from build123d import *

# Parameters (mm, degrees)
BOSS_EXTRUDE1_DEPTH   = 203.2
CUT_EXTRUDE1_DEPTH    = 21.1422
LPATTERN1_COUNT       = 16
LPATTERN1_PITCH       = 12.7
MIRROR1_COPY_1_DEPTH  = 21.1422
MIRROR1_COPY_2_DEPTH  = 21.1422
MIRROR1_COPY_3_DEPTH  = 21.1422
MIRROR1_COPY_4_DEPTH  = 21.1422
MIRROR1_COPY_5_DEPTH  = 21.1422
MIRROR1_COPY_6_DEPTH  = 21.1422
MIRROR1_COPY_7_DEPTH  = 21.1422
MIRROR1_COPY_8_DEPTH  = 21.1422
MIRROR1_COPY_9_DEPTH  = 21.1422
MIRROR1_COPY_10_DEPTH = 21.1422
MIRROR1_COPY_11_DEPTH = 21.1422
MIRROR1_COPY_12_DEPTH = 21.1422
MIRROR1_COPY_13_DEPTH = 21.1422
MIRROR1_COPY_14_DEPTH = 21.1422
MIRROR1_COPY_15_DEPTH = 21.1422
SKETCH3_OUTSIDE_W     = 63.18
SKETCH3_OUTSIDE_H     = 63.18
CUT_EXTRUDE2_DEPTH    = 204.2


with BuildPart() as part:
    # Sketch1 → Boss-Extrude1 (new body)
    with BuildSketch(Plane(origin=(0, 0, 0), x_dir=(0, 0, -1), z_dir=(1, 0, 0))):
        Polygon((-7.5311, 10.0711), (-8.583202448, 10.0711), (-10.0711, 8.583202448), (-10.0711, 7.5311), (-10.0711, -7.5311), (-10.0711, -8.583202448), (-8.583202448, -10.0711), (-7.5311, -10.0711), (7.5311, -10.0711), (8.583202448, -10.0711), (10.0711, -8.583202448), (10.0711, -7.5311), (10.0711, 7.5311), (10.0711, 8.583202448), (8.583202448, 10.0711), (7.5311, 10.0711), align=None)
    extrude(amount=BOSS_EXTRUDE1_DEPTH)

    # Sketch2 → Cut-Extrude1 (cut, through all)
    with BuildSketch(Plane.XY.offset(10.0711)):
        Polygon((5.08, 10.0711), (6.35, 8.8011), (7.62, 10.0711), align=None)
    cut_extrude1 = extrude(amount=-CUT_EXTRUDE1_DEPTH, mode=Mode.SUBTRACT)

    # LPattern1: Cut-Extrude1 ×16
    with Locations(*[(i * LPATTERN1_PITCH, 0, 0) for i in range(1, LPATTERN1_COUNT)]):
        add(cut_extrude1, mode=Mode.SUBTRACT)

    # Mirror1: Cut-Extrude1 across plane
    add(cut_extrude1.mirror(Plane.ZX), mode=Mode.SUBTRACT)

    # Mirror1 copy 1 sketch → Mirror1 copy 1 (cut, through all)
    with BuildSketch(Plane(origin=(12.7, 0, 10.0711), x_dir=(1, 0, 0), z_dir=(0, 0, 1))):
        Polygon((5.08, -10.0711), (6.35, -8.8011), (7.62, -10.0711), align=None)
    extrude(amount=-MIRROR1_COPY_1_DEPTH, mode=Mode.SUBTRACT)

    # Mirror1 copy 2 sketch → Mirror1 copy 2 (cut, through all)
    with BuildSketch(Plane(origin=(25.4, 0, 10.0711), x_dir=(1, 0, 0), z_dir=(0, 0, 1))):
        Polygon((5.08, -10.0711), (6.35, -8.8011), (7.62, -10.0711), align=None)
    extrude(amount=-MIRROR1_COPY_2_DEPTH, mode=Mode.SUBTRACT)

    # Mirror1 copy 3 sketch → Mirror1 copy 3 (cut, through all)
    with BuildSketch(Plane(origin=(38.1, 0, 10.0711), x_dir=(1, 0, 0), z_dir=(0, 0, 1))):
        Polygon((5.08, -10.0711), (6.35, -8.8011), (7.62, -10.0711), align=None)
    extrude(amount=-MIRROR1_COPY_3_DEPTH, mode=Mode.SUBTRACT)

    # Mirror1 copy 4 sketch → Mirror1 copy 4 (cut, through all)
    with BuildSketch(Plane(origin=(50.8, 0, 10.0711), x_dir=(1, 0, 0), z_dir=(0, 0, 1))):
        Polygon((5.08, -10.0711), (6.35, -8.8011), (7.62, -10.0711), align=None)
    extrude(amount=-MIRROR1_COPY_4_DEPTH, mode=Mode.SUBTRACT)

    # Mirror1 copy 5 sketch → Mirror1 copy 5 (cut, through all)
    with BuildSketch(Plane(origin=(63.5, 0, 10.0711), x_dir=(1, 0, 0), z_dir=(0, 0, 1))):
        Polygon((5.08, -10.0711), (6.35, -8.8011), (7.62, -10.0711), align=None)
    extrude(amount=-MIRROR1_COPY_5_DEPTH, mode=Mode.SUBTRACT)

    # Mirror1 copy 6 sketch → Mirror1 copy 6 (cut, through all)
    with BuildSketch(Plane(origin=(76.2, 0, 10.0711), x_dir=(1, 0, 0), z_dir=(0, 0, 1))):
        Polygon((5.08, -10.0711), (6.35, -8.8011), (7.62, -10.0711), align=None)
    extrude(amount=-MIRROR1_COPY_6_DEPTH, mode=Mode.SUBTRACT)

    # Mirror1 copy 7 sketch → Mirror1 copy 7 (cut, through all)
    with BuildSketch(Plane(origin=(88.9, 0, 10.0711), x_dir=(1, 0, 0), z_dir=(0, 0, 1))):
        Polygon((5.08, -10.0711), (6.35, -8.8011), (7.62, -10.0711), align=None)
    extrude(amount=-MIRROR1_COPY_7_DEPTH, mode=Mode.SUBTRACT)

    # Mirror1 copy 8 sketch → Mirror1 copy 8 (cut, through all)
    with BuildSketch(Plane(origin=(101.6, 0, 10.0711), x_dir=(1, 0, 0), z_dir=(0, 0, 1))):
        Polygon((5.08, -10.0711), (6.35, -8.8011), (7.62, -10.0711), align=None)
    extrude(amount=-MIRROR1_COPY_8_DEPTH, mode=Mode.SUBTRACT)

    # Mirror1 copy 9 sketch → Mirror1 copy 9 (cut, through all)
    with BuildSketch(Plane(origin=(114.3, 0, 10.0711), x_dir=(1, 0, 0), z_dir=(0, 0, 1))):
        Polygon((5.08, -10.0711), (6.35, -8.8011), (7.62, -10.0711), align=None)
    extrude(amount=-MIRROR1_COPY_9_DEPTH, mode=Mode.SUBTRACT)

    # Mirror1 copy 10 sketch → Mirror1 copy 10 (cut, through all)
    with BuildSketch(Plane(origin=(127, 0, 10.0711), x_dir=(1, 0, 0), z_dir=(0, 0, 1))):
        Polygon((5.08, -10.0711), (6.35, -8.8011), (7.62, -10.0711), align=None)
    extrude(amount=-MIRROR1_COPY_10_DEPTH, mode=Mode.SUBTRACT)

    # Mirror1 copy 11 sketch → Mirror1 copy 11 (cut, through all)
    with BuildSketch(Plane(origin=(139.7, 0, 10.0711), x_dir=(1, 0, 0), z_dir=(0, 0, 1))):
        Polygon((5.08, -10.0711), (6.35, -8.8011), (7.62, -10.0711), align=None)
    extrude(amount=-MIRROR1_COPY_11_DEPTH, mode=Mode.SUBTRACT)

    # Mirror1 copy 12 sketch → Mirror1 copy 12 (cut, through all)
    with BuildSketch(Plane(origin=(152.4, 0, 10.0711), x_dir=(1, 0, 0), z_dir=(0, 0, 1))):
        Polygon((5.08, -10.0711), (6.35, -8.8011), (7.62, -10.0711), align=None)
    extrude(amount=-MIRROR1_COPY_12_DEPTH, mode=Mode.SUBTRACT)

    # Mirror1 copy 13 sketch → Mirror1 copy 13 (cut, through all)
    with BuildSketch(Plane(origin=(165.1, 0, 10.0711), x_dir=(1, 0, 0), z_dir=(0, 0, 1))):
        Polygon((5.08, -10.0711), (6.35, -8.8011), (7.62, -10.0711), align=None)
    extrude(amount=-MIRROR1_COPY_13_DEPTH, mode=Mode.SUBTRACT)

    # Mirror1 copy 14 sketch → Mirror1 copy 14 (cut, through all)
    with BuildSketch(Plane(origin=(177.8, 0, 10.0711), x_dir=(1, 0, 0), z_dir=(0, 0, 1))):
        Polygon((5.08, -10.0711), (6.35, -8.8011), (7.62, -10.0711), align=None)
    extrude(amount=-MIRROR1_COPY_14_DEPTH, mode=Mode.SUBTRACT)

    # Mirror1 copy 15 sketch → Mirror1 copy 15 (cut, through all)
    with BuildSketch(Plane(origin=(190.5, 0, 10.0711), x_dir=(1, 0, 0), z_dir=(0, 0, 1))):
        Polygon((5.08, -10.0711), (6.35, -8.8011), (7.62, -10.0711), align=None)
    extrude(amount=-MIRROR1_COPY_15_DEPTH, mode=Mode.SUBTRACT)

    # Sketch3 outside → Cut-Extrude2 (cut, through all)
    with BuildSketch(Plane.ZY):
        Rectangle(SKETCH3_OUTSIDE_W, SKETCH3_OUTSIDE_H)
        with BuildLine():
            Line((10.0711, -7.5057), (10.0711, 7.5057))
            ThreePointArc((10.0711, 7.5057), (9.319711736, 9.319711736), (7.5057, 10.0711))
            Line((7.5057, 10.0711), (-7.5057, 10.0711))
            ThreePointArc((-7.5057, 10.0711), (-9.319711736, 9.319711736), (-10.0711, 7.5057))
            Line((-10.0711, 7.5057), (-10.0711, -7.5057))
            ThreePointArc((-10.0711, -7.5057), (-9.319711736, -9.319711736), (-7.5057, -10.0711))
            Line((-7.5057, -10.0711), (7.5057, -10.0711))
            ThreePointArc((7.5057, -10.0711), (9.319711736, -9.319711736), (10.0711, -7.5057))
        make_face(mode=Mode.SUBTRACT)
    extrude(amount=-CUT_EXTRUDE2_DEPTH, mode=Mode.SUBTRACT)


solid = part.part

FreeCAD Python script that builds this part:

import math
import FreeCAD as App
import Part
import Sketcher
from FreeCAD import Vector
Q = App.Units.Quantity


def add_polygon(sketch, points):
    """Adds a closed chain of lines whose ends are joined by coincident constraints."""
    first, n = sketch.GeometryCount, len(points)
    for a, b in zip(points, points[1:] + points[:1]):
        sketch.addGeometry(Part.LineSegment(App.Vector(*a, 0), App.Vector(*b, 0)), False)
    for i in range(n):
        sketch.addConstraint(Sketcher.Constraint("Coincident", first + i, 2, first + (i + 1) % n, 1))

doc = App.newDocument("Part")
body = doc.addObject("PartDesign::Body", "Body")

# Sketch on YZ plane
sketch1 = body.newObject("Sketcher::SketchObject", "Sketch")
sketch1.AttachmentSupport = (doc.getObject("YZ_Plane"), [""])
sketch1.MapMode = "FlatFace"
add_polygon(sketch1, [(10.0711, 8.583202), (8.583202, 10.0711), (-8.583202, 10.0711), (-10.0711, 8.583202), (-10.0711, -8.583202), (-8.583202, -10.0711), (8.583202, -10.0711), (10.0711, -8.583202)])  # lines 0-7
sketch1.addConstraint(Sketcher.Constraint("Horizontal", 1))
sketch1.addConstraint(Sketcher.Constraint("Vertical", 3))
sketch1.addConstraint(Sketcher.Constraint("Horizontal", 5))
sketch1.addConstraint(Sketcher.Constraint("Vertical", 7))
sketch1.addConstraint(Sketcher.Constraint("Symmetric", 0, 2, 4, 2, -1, 1))
sketch1.addConstraint(Sketcher.Constraint("Symmetric", 2, 2, 6, 2, -1, 1))
sketch1.addConstraint(Sketcher.Constraint("Perpendicular", 0, 2))
sketch1.addConstraint(Sketcher.Constraint("Perpendicular", 2, 4))
sketch1.addConstraint(Sketcher.Constraint("Perpendicular", 4, 6))
sketch1.addConstraint(Sketcher.Constraint("Horizontal", 3, 2, 6, 2))
sketch1.addConstraint(Sketcher.Constraint("Vertical", 1, 2, 4, 2))
sketch1.addConstraint(Sketcher.Constraint("Equal", 5, 3))
sketch1.addConstraint(Sketcher.Constraint("DistanceY", 4, 2, 1, 2, Q("0.793 in")))
sketch1.addConstraint(Sketcher.Constraint("DistanceX", 1, 2, 1, 1, 17.166405))
pad1 = body.newObject("PartDesign::Pad", "Pad")
pad1.Profile = sketch1
pad1.Length = Q("8 in")

# Sketch on XY plane
sketch2 = body.newObject("Sketcher::SketchObject", "Sketch001")
sketch2.AttachmentSupport = (doc.getObject("XY_Plane"), [""])
sketch2.MapMode = "FlatFace"
sketch2.AttachmentOffset = App.Placement(Vector(0, 0, 0.3965 * 25.4), App.Rotation())
add_polygon(sketch2, [(5.08, 10.0711), (6.35, 8.8011), (7.62, 10.0711)])  # lines 0-2
sketch2.addConstraint(Sketcher.Constraint("Horizontal", 2))
sketch2.addConstraint(Sketcher.Constraint("Perpendicular", 0, 1))
sketch2.addConstraint(Sketcher.Constraint("Equal", 0, 1))
sketch2.addConstraint(Sketcher.Constraint("DistanceX", 2, 2, 2, 1, Q("0.1 in")))
sketch2.addConstraint(Sketcher.Constraint("DistanceX", -1, 1, 1, 2, Q("0.3 in")))
sketch2.addConstraint(Sketcher.Constraint("DistanceY", -1, 1, 0, 2, Q("0.3465 in")))
pocket1 = body.newObject("PartDesign::Pocket", "Pocket")
pocket1.Profile = sketch2
pocket1.Type = "ThroughAll"
doc.recompute()

linearpattern = body.newObject("PartDesign::LinearPattern", "LinearPattern")
linearpattern.Originals = [pocket1]
linearpattern.Direction = (doc.getObject("X_Axis"), [""])
linearpattern.Mode = "offset"
linearpattern.Offset = Q("0.5 in")
linearpattern.Occurrences = 16
body.Tip = linearpattern
doc.recompute()

mirrored = body.newObject("PartDesign::Mirrored", "Mirrored")
mirrored.Originals = [pocket1]
mirrored.MirrorPlane = (doc.getObject("XZ_Plane"), [""])
body.Tip = mirrored

# Sketch on XY plane
sketch3 = body.newObject("Sketcher::SketchObject", "Sketch002")
sketch3.AttachmentSupport = (doc.getObject("XY_Plane"), [""])
sketch3.MapMode = "FlatFace"
sketch3.AttachmentOffset = App.Placement(Vector(0, 0, 0.3965 * 25.4), App.Rotation())
add_polygon(sketch3, [(19.05, -8.8011), (17.78, -10.0711), (20.32, -10.0711)])  # lines 0-2
sketch3.addConstraint(Sketcher.Constraint("Horizontal", 1))
sketch3.addConstraint(Sketcher.Constraint("Perpendicular", 0, 2))
sketch3.addConstraint(Sketcher.Constraint("Equal", 0, 2))
sketch3.addConstraint(Sketcher.Constraint("DistanceX", 1, 1, 1, 2, Q("0.1 in")))
sketch3.addConstraint(Sketcher.Constraint("DistanceX", -1, 1, 0, 2, Q("0.7 in")))
sketch3.addConstraint(Sketcher.Constraint("DistanceY", 0, 2, -1, 1, Q("0.3965 in")))
pocket2 = body.newObject("PartDesign::Pocket", "Pocket001")
pocket2.Profile = sketch3
pocket2.Type = "ThroughAll"

# Sketch on XY plane
sketch4 = body.newObject("Sketcher::SketchObject", "Sketch003")
sketch4.AttachmentSupport = (doc.getObject("XY_Plane"), [""])
sketch4.MapMode = "FlatFace"
sketch4.AttachmentOffset = App.Placement(Vector(0, 0, 0.3965 * 25.4), App.Rotation())
add_polygon(sketch4, [(31.75, -8.8011), (30.48, -10.0711), (33.02, -10.0711)])  # lines 0-2
sketch4.addConstraint(Sketcher.Constraint("Horizontal", 1))
sketch4.addConstraint(Sketcher.Constraint("Perpendicular", 0, 2))
sketch4.addConstraint(Sketcher.Constraint("Equal", 0, 2))
sketch4.addConstraint(Sketcher.Constraint("DistanceX", 1, 1, 1, 2, Q("0.1 in")))
sketch4.addConstraint(Sketcher.Constraint("DistanceX", -1, 1, 0, 2, Q("1.2 in")))
sketch4.addConstraint(Sketcher.Constraint("DistanceY", 0, 2, -1, 1, Q("0.3965 in")))
pocket3 = body.newObject("PartDesign::Pocket", "Pocket002")
pocket3.Profile = sketch4
pocket3.Type = "ThroughAll"

# Sketch on XY plane
sketch5 = body.newObject("Sketcher::SketchObject", "Sketch004")
sketch5.AttachmentSupport = (doc.getObject("XY_Plane"), [""])
sketch5.MapMode = "FlatFace"
sketch5.AttachmentOffset = App.Placement(Vector(0, 0, 0.3965 * 25.4), App.Rotation())
add_polygon(sketch5, [(44.45, -8.8011), (43.18, -10.0711), (45.72, -10.0711)])  # lines 0-2
sketch5.addConstraint(Sketcher.Constraint("Horizontal", 1))
sketch5.addConstraint(Sketcher.Constraint("Perpendicular", 0, 2))
sketch5.addConstraint(Sketcher.Constraint("Equal", 0, 2))
sketch5.addConstraint(Sketcher.Constraint("DistanceX", 1, 1, 1, 2, Q("0.1 in")))
sketch5.addConstraint(Sketcher.Constraint("DistanceX", -1, 1, 0, 2, Q("1.7 in")))
sketch5.addConstraint(Sketcher.Constraint("DistanceY", 0, 2, -1, 1, Q("0.3965 in")))
pocket4 = body.newObject("PartDesign::Pocket", "Pocket003")
pocket4.Profile = sketch5
pocket4.Type = "ThroughAll"

# Sketch on XY plane
sketch6 = body.newObject("Sketcher::SketchObject", "Sketch005")
sketch6.AttachmentSupport = (doc.getObject("XY_Plane"), [""])
sketch6.MapMode = "FlatFace"
sketch6.AttachmentOffset = App.Placement(Vector(0, 0, 0.3965 * 25.4), App.Rotation())
add_polygon(sketch6, [(57.15, -8.8011), (55.88, -10.0711), (58.42, -10.0711)])  # lines 0-2
sketch6.addConstraint(Sketcher.Constraint("Horizontal", 1))
sketch6.addConstraint(Sketcher.Constraint("Perpendicular", 0, 2))
sketch6.addConstraint(Sketcher.Constraint("Equal", 0, 2))
sketch6.addConstraint(Sketcher.Constraint("DistanceX", 1, 1, 1, 2, Q("0.1 in")))
sketch6.addConstraint(Sketcher.Constraint("DistanceX", -1, 1, 0, 2, Q("2.2 in")))
sketch6.addConstraint(Sketcher.Constraint("DistanceY", 0, 2, -1, 1, Q("0.3965 in")))
pocket5 = body.newObject("PartDesign::Pocket", "Pocket004")
pocket5.Profile = sketch6
pocket5.Type = "ThroughAll"

# Sketch on XY plane
sketch7 = body.newObject("Sketcher::SketchObject", "Sketch006")
sketch7.AttachmentSupport = (doc.getObject("XY_Plane"), [""])
sketch7.MapMode = "FlatFace"
sketch7.AttachmentOffset = App.Placement(Vector(0, 0, 0.3965 * 25.4), App.Rotation())
add_polygon(sketch7, [(69.85, -8.8011), (68.58, -10.0711), (71.12, -10.0711)])  # lines 0-2
sketch7.addConstraint(Sketcher.Constraint("Horizontal", 1))
sketch7.addConstraint(Sketcher.Constraint("Perpendicular", 0, 2))
sketch7.addConstraint(Sketcher.Constraint("Equal", 0, 2))
sketch7.addConstraint(Sketcher.Constraint("DistanceX", 1, 1, 1, 2, Q("0.1 in")))
sketch7.addConstraint(Sketcher.Constraint("DistanceX", -1, 1, 0, 2, Q("2.7 in")))
sketch7.addConstraint(Sketcher.Constraint("DistanceY", 0, 2, -1, 1, Q("0.3965 in")))
pocket6 = body.newObject("PartDesign::Pocket", "Pocket005")
pocket6.Profile = sketch7
pocket6.Type = "ThroughAll"

# Sketch on XY plane
sketch8 = body.newObject("Sketcher::SketchObject", "Sketch007")
sketch8.AttachmentSupport = (doc.getObject("XY_Plane"), [""])
sketch8.MapMode = "FlatFace"
sketch8.AttachmentOffset = App.Placement(Vector(0, 0, 0.3965 * 25.4), App.Rotation())
add_polygon(sketch8, [(82.55, -8.8011), (81.28, -10.0711), (83.82, -10.0711)])  # lines 0-2
sketch8.addConstraint(Sketcher.Constraint("Horizontal", 1))
sketch8.addConstraint(Sketcher.Constraint("Perpendicular", 0, 2))
sketch8.addConstraint(Sketcher.Constraint("Equal", 0, 2))
sketch8.addConstraint(Sketcher.Constraint("DistanceX", 1, 1, 1, 2, Q("0.1 in")))
sketch8.addConstraint(Sketcher.Constraint("DistanceX", -1, 1, 0, 2, Q("3.2 in")))
sketch8.addConstraint(Sketcher.Constraint("DistanceY", 0, 2, -1, 1, Q("0.3965 in")))
pocket7 = body.newObject("PartDesign::Pocket", "Pocket006")
pocket7.Profile = sketch8
pocket7.Type = "ThroughAll"

# Sketch on XY plane
sketch9 = body.newObject("Sketcher::SketchObject", "Sketch008")
sketch9.AttachmentSupport = (doc.getObject("XY_Plane"), [""])
sketch9.MapMode = "FlatFace"
sketch9.AttachmentOffset = App.Placement(Vector(0, 0, 0.3965 * 25.4), App.Rotation())
add_polygon(sketch9, [(95.25, -8.8011), (93.98, -10.0711), (96.52, -10.0711)])  # lines 0-2
sketch9.addConstraint(Sketcher.Constraint("Horizontal", 1))
sketch9.addConstraint(Sketcher.Constraint("Perpendicular", 0, 2))
sketch9.addConstraint(Sketcher.Constraint("Equal", 0, 2))
sketch9.addConstraint(Sketcher.Constraint("DistanceX", 1, 1, 1, 2, Q("0.1 in")))
sketch9.addConstraint(Sketcher.Constraint("DistanceX", -1, 1, 0, 2, Q("3.7 in")))
sketch9.addConstraint(Sketcher.Constraint("DistanceY", 0, 2, -1, 1, Q("0.3965 in")))
pocket8 = body.newObject("PartDesign::Pocket", "Pocket007")
pocket8.Profile = sketch9
pocket8.Type = "ThroughAll"

# Sketch on XY plane
sketch10 = body.newObject("Sketcher::SketchObject", "Sketch009")
sketch10.AttachmentSupport = (doc.getObject("XY_Plane"), [""])
sketch10.MapMode = "FlatFace"
sketch10.AttachmentOffset = App.Placement(Vector(0, 0, 0.3965 * 25.4), App.Rotation())
add_polygon(sketch10, [(107.95, -8.8011), (106.68, -10.0711), (109.22, -10.0711)])  # lines 0-2
sketch10.addConstraint(Sketcher.Constraint("Horizontal", 1))
sketch10.addConstraint(Sketcher.Constraint("Perpendicular", 0, 2))
sketch10.addConstraint(Sketcher.Constraint("Equal", 0, 2))
sketch10.addConstraint(Sketcher.Constraint("DistanceX", 1, 1, 1, 2, Q("0.1 in")))
sketch10.addConstraint(Sketcher.Constraint("DistanceX", -1, 1, 0, 2, Q("4.2 in")))
sketch10.addConstraint(Sketcher.Constraint("DistanceY", 0, 2, -1, 1, Q("0.3965 in")))
pocket9 = body.newObject("PartDesign::Pocket", "Pocket008")
pocket9.Profile = sketch10
pocket9.Type = "ThroughAll"

# Sketch on XY plane
sketch11 = body.newObject("Sketcher::SketchObject", "Sketch010")
sketch11.AttachmentSupport = (doc.getObject("XY_Plane"), [""])
sketch11.MapMode = "FlatFace"
sketch11.AttachmentOffset = App.Placement(Vector(0, 0, 0.3965 * 25.4), App.Rotation())
add_polygon(sketch11, [(120.65, -8.8011), (119.38, -10.0711), (121.92, -10.0711)])  # lines 0-2
sketch11.addConstraint(Sketcher.Constraint("Horizontal", 1))
sketch11.addConstraint(Sketcher.Constraint("Perpendicular", 0, 2))
sketch11.addConstraint(Sketcher.Constraint("Equal", 0, 2))
sketch11.addConstraint(Sketcher.Constraint("DistanceX", 1, 1, 1, 2, Q("0.1 in")))
sketch11.addConstraint(Sketcher.Constraint("DistanceX", -1, 1, 0, 2, Q("4.7 in")))
sketch11.addConstraint(Sketcher.Constraint("DistanceY", 0, 2, -1, 1, Q("0.3965 in")))
pocket10 = body.newObject("PartDesign::Pocket", "Pocket009")
pocket10.Profile = sketch11
pocket10.Type = "ThroughAll"

# Sketch on XY plane
sketch12 = body.newObject("Sketcher::SketchObject", "Sketch011")
sketch12.AttachmentSupport = (doc.getObject("XY_Plane"), [""])
sketch12.MapMode = "FlatFace"
sketch12.AttachmentOffset = App.Placement(Vector(0, 0, 0.3965 * 25.4), App.Rotation())
add_polygon(sketch12, [(133.35, -8.8011), (132.08, -10.0711), (134.62, -10.0711)])  # lines 0-2
sketch12.addConstraint(Sketcher.Constraint("Horizontal", 1))
sketch12.addConstraint(Sketcher.Constraint("Perpendicular", 0, 2))
sketch12.addConstraint(Sketcher.Constraint("Equal", 0, 2))
sketch12.addConstraint(Sketcher.Constraint("DistanceX", 1, 1, 1, 2, Q("0.1 in")))
sketch12.addConstraint(Sketcher.Constraint("DistanceX", -1, 1, 0, 2, Q("5.2 in")))
sketch12.addConstraint(Sketcher.Constraint("DistanceY", 0, 2, -1, 1, Q("0.3965 in")))
pocket11 = body.newObject("PartDesign::Pocket", "Pocket010")
pocket11.Profile = sketch12
pocket11.Type = "ThroughAll"

# Sketch on XY plane
sketch13 = body.newObject("Sketcher::SketchObject", "Sketch012")
sketch13.AttachmentSupport = (doc.getObject("XY_Plane"), [""])
sketch13.MapMode = "FlatFace"
sketch13.AttachmentOffset = App.Placement(Vector(0, 0, 0.3965 * 25.4), App.Rotation())
add_polygon(sketch13, [(146.05, -8.8011), (144.78, -10.0711), (147.32, -10.0711)])  # lines 0-2
sketch13.addConstraint(Sketcher.Constraint("Horizontal", 1))
sketch13.addConstraint(Sketcher.Constraint("Perpendicular", 0, 2))
sketch13.addConstraint(Sketcher.Constraint("Equal", 0, 2))
sketch13.addConstraint(Sketcher.Constraint("DistanceX", 1, 1, 1, 2, Q("0.1 in")))
sketch13.addConstraint(Sketcher.Constraint("DistanceX", -1, 1, 0, 2, Q("5.7 in")))
sketch13.addConstraint(Sketcher.Constraint("DistanceY", 0, 2, -1, 1, Q("0.3965 in")))
pocket12 = body.newObject("PartDesign::Pocket", "Pocket011")
pocket12.Profile = sketch13
pocket12.Type = "ThroughAll"

# Sketch on XY plane
sketch14 = body.newObject("Sketcher::SketchObject", "Sketch013")
sketch14.AttachmentSupport = (doc.getObject("XY_Plane"), [""])
sketch14.MapMode = "FlatFace"
sketch14.AttachmentOffset = App.Placement(Vector(0, 0, 0.3965 * 25.4), App.Rotation())
add_polygon(sketch14, [(158.75, -8.8011), (157.48, -10.0711), (160.02, -10.0711)])  # lines 0-2
sketch14.addConstraint(Sketcher.Constraint("Horizontal", 1))
sketch14.addConstraint(Sketcher.Constraint("Perpendicular", 0, 2))
sketch14.addConstraint(Sketcher.Constraint("Equal", 0, 2))
sketch14.addConstraint(Sketcher.Constraint("DistanceX", 1, 1, 1, 2, Q("0.1 in")))
sketch14.addConstraint(Sketcher.Constraint("DistanceX", -1, 1, 0, 2, Q("6.2 in")))
sketch14.addConstraint(Sketcher.Constraint("DistanceY", 0, 2, -1, 1, Q("0.3965 in")))
pocket13 = body.newObject("PartDesign::Pocket", "Pocket012")
pocket13.Profile = sketch14
pocket13.Type = "ThroughAll"

# Sketch on XY plane
sketch15 = body.newObject("Sketcher::SketchObject", "Sketch014")
sketch15.AttachmentSupport = (doc.getObject("XY_Plane"), [""])
sketch15.MapMode = "FlatFace"
sketch15.AttachmentOffset = App.Placement(Vector(0, 0, 0.3965 * 25.4), App.Rotation())
add_polygon(sketch15, [(171.45, -8.8011), (170.18, -10.0711), (172.72, -10.0711)])  # lines 0-2
sketch15.addConstraint(Sketcher.Constraint("Horizontal", 1))
sketch15.addConstraint(Sketcher.Constraint("Perpendicular", 0, 2))
sketch15.addConstraint(Sketcher.Constraint("Equal", 0, 2))
sketch15.addConstraint(Sketcher.Constraint("DistanceX", 1, 1, 1, 2, Q("0.1 in")))
sketch15.addConstraint(Sketcher.Constraint("DistanceX", -1, 1, 0, 2, Q("6.7 in")))
sketch15.addConstraint(Sketcher.Constraint("DistanceY", 0, 2, -1, 1, Q("0.3965 in")))
pocket14 = body.newObject("PartDesign::Pocket", "Pocket013")
pocket14.Profile = sketch15
pocket14.Type = "ThroughAll"

# Sketch on XY plane
sketch16 = body.newObject("Sketcher::SketchObject", "Sketch015")
sketch16.AttachmentSupport = (doc.getObject("XY_Plane"), [""])
sketch16.MapMode = "FlatFace"
sketch16.AttachmentOffset = App.Placement(Vector(0, 0, 0.3965 * 25.4), App.Rotation())
add_polygon(sketch16, [(184.15, -8.8011), (182.88, -10.0711), (185.42, -10.0711)])  # lines 0-2
sketch16.addConstraint(Sketcher.Constraint("Horizontal", 1))
sketch16.addConstraint(Sketcher.Constraint("Perpendicular", 0, 2))
sketch16.addConstraint(Sketcher.Constraint("Equal", 0, 2))
sketch16.addConstraint(Sketcher.Constraint("DistanceX", 1, 1, 1, 2, Q("0.1 in")))
sketch16.addConstraint(Sketcher.Constraint("DistanceX", -1, 1, 0, 2, Q("7.2 in")))
sketch16.addConstraint(Sketcher.Constraint("DistanceY", 0, 2, -1, 1, Q("0.3965 in")))
pocket15 = body.newObject("PartDesign::Pocket", "Pocket014")
pocket15.Profile = sketch16
pocket15.Type = "ThroughAll"

# Sketch on XY plane
sketch17 = body.newObject("Sketcher::SketchObject", "Sketch016")
sketch17.AttachmentSupport = (doc.getObject("XY_Plane"), [""])
sketch17.MapMode = "FlatFace"
sketch17.AttachmentOffset = App.Placement(Vector(0, 0, 0.3965 * 25.4), App.Rotation())
add_polygon(sketch17, [(196.85, -8.8011), (195.58, -10.0711), (198.12, -10.0711)])  # lines 0-2
sketch17.addConstraint(Sketcher.Constraint("Horizontal", 1))
sketch17.addConstraint(Sketcher.Constraint("Perpendicular", 0, 2))
sketch17.addConstraint(Sketcher.Constraint("Equal", 0, 2))
sketch17.addConstraint(Sketcher.Constraint("DistanceX", 1, 1, 1, 2, Q("0.1 in")))
sketch17.addConstraint(Sketcher.Constraint("DistanceX", -1, 1, 0, 2, Q("7.7 in")))
sketch17.addConstraint(Sketcher.Constraint("DistanceY", 0, 2, -1, 1, Q("0.3965 in")))
pocket16 = body.newObject("PartDesign::Pocket", "Pocket015")
pocket16.Profile = sketch17
pocket16.Type = "ThroughAll"

# Sketch on YZ plane
sketch18 = body.newObject("Sketcher::SketchObject", "Sketch017")
sketch18.AttachmentSupport = (doc.getObject("YZ_Plane"), [""])
sketch18.MapMode = "FlatFace"
add_polygon(sketch18, [(31.59, -31.59), (-31.59, -31.59), (-31.59, 31.59), (31.59, 31.59)])  # lines 0-3
sketch18.addGeometry(Part.LineSegment(Vector(7.5057, 10.0711, 0), Vector(-7.5057, 10.0711, 0)), False)  # 4
sketch18.addGeometry(Part.ArcOfCircle(Part.Circle(Vector(-7.5057, 7.5057, 0), Vector(0, 0, 1), 2.5654), math.radians(90), math.radians(180)), False)  # 5
sketch18.addGeometry(Part.LineSegment(Vector(-10.0711, 7.5057, 0), Vector(-10.0711, -7.5057, 0)), False)  # 6
sketch18.addGeometry(Part.ArcOfCircle(Part.Circle(Vector(-7.5057, -7.5057, 0), Vector(0, 0, 1), 2.5654), math.radians(-180), math.radians(-90)), False)  # 7
sketch18.addGeometry(Part.LineSegment(Vector(-7.5057, -10.0711, 0), Vector(7.5057, -10.0711, 0)), False)  # 8
sketch18.addGeometry(Part.ArcOfCircle(Part.Circle(Vector(7.5057, -7.5057, 0), Vector(0, 0, 1), 2.5654), math.radians(-90), math.radians(0)), False)  # 9
sketch18.addGeometry(Part.LineSegment(Vector(10.0711, -7.5057, 0), Vector(10.0711, 7.5057, 0)), False)  # 10
sketch18.addGeometry(Part.ArcOfCircle(Part.Circle(Vector(7.5057, 7.5057, 0), Vector(0, 0, 1), 2.5654), math.radians(0), math.radians(90)), False)  # 11
sketch18.addConstraint(Sketcher.Constraint("Tangent", 4, 2, 5, 1))
sketch18.addConstraint(Sketcher.Constraint("Tangent", 5, 2, 6, 1))
sketch18.addConstraint(Sketcher.Constraint("Tangent", 6, 2, 7, 1))
sketch18.addConstraint(Sketcher.Constraint("Tangent", 7, 2, 8, 1))
sketch18.addConstraint(Sketcher.Constraint("Tangent", 8, 2, 9, 1))
sketch18.addConstraint(Sketcher.Constraint("Tangent", 9, 2, 10, 1))
sketch18.addConstraint(Sketcher.Constraint("Tangent", 10, 2, 11, 1))
sketch18.addConstraint(Sketcher.Constraint("Tangent", 11, 2, 4, 1))
sketch18.addConstraint(Sketcher.Constraint("Horizontal", 0))
sketch18.addConstraint(Sketcher.Constraint("Vertical", 1))
sketch18.addConstraint(Sketcher.Constraint("Horizontal", 2))
sketch18.addConstraint(Sketcher.Constraint("Vertical", 3))
sketch18.addConstraint(Sketcher.Constraint("Horizontal", 4))
sketch18.addConstraint(Sketcher.Constraint("Vertical", 6))
sketch18.addConstraint(Sketcher.Constraint("Horizontal", 8))
sketch18.addConstraint(Sketcher.Constraint("Vertical", 10))
sketch18.addConstraint(Sketcher.Constraint("Equal", 5, 7))
sketch18.addConstraint(Sketcher.Constraint("Equal", 7, 9))
sketch18.addConstraint(Sketcher.Constraint("Equal", 9, 11))
sketch18.addConstraint(Sketcher.Constraint("Symmetric", 5, 3, 9, 3, -1, 1))
sketch18.addConstraint(Sketcher.Constraint("Symmetric", 0, 2, 2, 2, -1, 1))
sketch18.addConstraint(Sketcher.Constraint("Equal", 2, 1))
sketch18.addConstraint(Sketcher.Constraint("Equal", 8, 6))
sketch18.addConstraint(Sketcher.Constraint("Radius", 5, Q("0.101 in")))
sketch18.addConstraint(Sketcher.Constraint("DistanceX", 4, 2, 4, 1, Q("0.591 in")))
sketch18.addConstraint(Sketcher.Constraint("DistanceX", 0, 2, 0, 1, 63.18))
pocket17 = body.newObject("PartDesign::Pocket", "Pocket016")
pocket17.Profile = sketch18
pocket17.Type = "ThroughAll"
pocket17.Reversed = True

doc.recompute()
